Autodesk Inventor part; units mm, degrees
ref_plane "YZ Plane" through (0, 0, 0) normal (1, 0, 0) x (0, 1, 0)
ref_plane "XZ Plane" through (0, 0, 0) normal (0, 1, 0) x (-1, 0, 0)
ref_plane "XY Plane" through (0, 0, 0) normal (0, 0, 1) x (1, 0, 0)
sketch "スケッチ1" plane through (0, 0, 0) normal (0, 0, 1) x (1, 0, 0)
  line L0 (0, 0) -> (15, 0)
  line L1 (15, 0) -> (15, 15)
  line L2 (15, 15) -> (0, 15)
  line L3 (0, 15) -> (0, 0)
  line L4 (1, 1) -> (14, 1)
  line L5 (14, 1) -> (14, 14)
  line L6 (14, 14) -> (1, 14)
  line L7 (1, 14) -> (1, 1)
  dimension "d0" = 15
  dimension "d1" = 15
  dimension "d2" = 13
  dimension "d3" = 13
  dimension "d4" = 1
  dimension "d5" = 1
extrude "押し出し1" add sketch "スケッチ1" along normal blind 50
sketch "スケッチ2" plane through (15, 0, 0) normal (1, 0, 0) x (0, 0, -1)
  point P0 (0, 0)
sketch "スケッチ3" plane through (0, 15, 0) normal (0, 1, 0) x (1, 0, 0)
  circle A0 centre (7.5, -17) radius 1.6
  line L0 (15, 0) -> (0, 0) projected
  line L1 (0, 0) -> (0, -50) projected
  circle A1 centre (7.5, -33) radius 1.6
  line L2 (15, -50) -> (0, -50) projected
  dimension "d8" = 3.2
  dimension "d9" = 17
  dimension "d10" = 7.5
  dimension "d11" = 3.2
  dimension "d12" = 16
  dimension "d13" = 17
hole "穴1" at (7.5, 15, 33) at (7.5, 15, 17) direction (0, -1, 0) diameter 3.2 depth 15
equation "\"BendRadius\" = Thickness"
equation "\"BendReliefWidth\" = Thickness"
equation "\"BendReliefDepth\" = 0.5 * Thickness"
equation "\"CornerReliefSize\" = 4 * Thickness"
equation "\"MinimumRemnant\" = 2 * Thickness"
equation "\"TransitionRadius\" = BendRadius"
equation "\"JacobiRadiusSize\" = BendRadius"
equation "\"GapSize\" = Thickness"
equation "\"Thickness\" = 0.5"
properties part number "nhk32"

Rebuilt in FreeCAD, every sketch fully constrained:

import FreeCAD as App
import Part
import Sketcher


def add_polygon(sketch, points):
    """Adds a closed chain of lines whose ends are joined by coincident constraints."""
    first, n = sketch.GeometryCount, len(points)
    for a, b in zip(points, points[1:] + points[:1]):
        sketch.addGeometry(Part.LineSegment(App.Vector(*a, 0), App.Vector(*b, 0)), False)
    for i in range(n):
        sketch.addConstraint(Sketcher.Constraint("Coincident", first + i, 2, first + (i + 1) % n, 1))

doc = App.newDocument("Part")
params = doc.addObject("Spreadsheet::Sheet", "Params")
for row, (alias, value) in enumerate([
    ("sketch1_width", "15 mm"),
    ("sketch1_width2", "13 mm"),
    ("pad1_length", "50 mm"),
    ("sketch2_diameter", "3.2 mm"),
    ("hole_diameter", "3.2 mm"),
    ("hole_depth", "15 mm"),
], start=1):
    params.set(f"A{row}", alias)
    params.set(f"B{row}", "=" + value)
    params.setAlias(f"B{row}", alias)

body = doc.addObject("PartDesign::Body", "Body")

# Sketch on XY plane
sketch1 = body.newObject("Sketcher::SketchObject", "Sketch")
sketch1.AttachmentSupport = (doc.getObject("XY_Plane"), [""])
sketch1.MapMode = "FlatFace"
add_polygon(sketch1, [(0, 15), (0, 0), (15, 0), (15, 15)])  # lines 0-3
add_polygon(sketch1, [(14, 1), (1, 1), (1, 14), (14, 14)])  # lines 4-7
sketch1.addConstraint(Sketcher.Constraint("Vertical", 0))
sketch1.addConstraint(Sketcher.Constraint("Horizontal", 1))
sketch1.addConstraint(Sketcher.Constraint("Vertical", 2))
sketch1.addConstraint(Sketcher.Constraint("Horizontal", 3))
sketch1.addConstraint(Sketcher.Constraint("Horizontal", 4))
sketch1.addConstraint(Sketcher.Constraint("Vertical", 5))
sketch1.addConstraint(Sketcher.Constraint("Horizontal", 6))
sketch1.addConstraint(Sketcher.Constraint("Vertical", 7))
sketch1.addConstraint(Sketcher.Constraint("Coincident", 0, 2, -1, 1))
sketch1.addConstraint(Sketcher.Constraint("Equal", 3, 0))
sketch1.addConstraint(Sketcher.Constraint("Equal", 6, 5))
sketch1.addConstraint(Sketcher.Constraint("DistanceX", 1, 1, 1, 2, 15.0))
sketch1.addConstraint(Sketcher.Constraint("DistanceX", 4, 2, 4, 1, 13.0))
sketch1.addConstraint(Sketcher.Constraint("DistanceX", -1, 1, 4, 2, 1.0))
sketch1.addConstraint(Sketcher.Constraint("DistanceY", -1, 1, 4, 2, 1.0))
sketch1.setExpression("Constraints[19]", "Params.sketch1_width")
sketch1.setExpression("Constraints[20]", "Params.sketch1_width2")
pad1 = body.newObject("PartDesign::Pad", "Pad")
pad1.Profile = sketch1
pad1.setExpression("Length", "Params.pad1_length")

# Sketch on XZ plane
sketch2 = body.newObject("Sketcher::SketchObject", "Sketch001")
sketch2.AttachmentSupport = (doc.getObject("XZ_Plane"), [""])
sketch2.MapMode = "FlatFace"
sketch2.AttachmentOffset = App.Placement(App.Vector(0, 0, -15), App.Rotation())
sketch2.addGeometry(Part.Circle(App.Vector(7.5, 33, 0), App.Vector(0, 0, 1), 1.6), False)
sketch2.addGeometry(Part.Circle(App.Vector(7.5, 17, 0), App.Vector(0, 0, 1), 1.6), False)
sketch2.addConstraint(Sketcher.Constraint("Equal", 0, 1))
sketch2.addConstraint(Sketcher.Constraint("Vertical", 0, 3, 1, 3))
sketch2.addConstraint(Sketcher.Constraint("Diameter", 0, 3.2))
sketch2.addConstraint(Sketcher.Constraint("DistanceY", -1, 1, 0, 3, 33.0))
sketch2.addConstraint(Sketcher.Constraint("DistanceY", -1, 1, 1, 3, 17.0))
sketch2.addConstraint(Sketcher.Constraint("DistanceX", -1, 1, 0, 3, 7.5))
sketch2.setExpression("Constraints[2]", "Params.sketch2_diameter")
doc.recompute()
hole = body.newObject("PartDesign::Hole", "Hole")
hole.Profile = sketch2
hole.ThreadType = "None"
hole.setExpression("Diameter", "Params.hole_diameter")
hole.DepthType = "Dimension"
hole.setExpression("Depth", "Params.hole_depth")
hole.DrillPoint = "Flat"
hole.Reversed = True

doc.recompute()
